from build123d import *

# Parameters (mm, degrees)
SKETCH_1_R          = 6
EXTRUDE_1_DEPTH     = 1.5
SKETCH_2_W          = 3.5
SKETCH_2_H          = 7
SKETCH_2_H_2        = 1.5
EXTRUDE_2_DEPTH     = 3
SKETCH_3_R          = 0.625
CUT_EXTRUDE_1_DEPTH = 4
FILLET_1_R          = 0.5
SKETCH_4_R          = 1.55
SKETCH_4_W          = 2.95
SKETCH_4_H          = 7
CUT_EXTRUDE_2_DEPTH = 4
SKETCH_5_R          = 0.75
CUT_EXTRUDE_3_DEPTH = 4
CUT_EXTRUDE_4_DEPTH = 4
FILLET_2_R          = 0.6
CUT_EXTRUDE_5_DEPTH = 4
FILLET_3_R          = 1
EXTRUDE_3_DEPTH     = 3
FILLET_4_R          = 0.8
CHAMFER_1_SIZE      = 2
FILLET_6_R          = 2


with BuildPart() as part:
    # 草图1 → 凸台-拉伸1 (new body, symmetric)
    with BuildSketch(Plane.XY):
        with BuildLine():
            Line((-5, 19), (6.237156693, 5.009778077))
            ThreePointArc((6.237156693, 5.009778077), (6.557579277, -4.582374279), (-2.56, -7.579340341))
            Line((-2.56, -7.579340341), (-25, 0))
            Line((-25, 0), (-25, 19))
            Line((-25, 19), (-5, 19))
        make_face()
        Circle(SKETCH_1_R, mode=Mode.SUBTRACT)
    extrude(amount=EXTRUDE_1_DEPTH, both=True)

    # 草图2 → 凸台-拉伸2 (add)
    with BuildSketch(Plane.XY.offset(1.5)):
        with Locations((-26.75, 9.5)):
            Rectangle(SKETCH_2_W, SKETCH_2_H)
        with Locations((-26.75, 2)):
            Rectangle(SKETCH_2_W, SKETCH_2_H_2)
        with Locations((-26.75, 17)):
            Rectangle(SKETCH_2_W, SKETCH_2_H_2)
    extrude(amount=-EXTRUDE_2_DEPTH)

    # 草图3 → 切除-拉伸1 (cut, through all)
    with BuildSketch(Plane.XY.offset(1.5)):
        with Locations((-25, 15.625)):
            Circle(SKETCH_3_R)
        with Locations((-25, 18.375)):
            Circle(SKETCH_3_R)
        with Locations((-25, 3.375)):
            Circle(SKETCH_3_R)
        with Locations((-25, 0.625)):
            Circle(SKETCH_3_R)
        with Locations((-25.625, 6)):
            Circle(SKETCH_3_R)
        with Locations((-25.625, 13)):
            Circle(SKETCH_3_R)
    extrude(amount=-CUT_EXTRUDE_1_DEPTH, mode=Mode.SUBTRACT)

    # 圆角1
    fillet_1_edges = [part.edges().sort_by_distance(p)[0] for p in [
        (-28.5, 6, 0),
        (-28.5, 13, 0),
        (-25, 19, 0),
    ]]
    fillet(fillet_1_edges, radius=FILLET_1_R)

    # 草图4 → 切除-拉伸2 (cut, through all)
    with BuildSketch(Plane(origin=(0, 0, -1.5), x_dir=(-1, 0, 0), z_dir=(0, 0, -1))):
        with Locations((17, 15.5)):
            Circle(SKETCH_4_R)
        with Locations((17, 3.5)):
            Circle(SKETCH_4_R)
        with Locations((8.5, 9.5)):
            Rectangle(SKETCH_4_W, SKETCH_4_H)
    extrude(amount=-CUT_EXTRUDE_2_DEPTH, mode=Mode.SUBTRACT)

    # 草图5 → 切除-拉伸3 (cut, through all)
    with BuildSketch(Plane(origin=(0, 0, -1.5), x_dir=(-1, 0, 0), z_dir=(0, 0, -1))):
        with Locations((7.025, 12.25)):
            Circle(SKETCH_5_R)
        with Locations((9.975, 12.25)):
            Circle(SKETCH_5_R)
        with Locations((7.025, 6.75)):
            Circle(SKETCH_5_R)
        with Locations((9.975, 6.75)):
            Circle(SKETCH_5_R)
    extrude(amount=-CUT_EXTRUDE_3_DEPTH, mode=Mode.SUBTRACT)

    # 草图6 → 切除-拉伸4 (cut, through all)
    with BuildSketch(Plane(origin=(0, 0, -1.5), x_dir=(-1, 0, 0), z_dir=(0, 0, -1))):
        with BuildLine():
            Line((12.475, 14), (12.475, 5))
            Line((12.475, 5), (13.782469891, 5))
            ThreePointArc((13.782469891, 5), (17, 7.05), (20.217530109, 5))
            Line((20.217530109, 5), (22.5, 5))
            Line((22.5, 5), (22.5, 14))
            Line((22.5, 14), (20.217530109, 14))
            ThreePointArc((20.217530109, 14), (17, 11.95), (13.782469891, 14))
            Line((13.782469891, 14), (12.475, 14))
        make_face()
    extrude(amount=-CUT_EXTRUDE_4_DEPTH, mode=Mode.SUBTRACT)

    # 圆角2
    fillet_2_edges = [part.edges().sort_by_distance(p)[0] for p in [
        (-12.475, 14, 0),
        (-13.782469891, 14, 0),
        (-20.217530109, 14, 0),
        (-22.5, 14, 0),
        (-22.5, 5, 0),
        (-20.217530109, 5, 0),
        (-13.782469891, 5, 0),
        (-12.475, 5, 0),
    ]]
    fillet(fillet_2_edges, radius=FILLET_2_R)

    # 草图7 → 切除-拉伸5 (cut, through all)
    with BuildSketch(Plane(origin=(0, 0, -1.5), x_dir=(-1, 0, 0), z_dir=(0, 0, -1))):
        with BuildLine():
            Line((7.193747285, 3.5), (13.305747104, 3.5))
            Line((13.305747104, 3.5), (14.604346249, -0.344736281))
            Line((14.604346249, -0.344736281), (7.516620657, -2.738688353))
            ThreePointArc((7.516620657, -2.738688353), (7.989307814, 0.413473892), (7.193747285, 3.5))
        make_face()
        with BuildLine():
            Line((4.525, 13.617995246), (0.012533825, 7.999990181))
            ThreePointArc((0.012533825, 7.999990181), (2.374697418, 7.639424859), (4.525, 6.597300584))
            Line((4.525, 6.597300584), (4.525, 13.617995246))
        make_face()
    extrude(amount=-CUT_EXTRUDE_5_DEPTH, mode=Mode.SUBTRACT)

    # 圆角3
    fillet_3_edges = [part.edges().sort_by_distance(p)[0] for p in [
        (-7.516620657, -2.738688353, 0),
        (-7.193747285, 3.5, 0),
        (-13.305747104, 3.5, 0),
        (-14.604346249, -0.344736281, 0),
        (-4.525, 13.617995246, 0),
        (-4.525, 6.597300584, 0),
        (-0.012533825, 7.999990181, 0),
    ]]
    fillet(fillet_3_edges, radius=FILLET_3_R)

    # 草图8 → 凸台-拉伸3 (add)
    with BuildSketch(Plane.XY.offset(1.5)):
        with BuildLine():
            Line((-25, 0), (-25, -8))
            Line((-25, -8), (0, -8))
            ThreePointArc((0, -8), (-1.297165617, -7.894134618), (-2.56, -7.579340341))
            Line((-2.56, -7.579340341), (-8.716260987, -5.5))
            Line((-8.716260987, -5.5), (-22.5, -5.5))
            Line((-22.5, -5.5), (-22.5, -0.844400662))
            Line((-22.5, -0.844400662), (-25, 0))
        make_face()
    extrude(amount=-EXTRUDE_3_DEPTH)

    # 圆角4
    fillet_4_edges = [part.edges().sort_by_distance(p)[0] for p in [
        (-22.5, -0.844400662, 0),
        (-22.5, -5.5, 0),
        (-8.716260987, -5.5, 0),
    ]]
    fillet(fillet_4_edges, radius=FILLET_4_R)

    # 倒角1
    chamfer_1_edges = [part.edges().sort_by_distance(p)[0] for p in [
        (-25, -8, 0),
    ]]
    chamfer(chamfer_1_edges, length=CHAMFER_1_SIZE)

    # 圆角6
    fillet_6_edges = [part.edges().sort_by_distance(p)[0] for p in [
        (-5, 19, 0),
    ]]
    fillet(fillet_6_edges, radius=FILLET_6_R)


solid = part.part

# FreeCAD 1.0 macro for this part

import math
import FreeCAD as App
import Part
import Sketcher
from FreeCAD import Vector


def edges_at(feature, points):
    """Names of the edges that pass closest to the given points."""
    edges = feature.Shape.Edges
    near = lambda p: min(range(len(edges)), key=lambda i: edges[i].distToShape(Part.Vertex(*p))[0])
    return sorted({f"Edge{near(p) + 1}" for p in points})

doc = App.newDocument("Part")
body = doc.addObject("PartDesign::Body", "Body")

# Sketch on XY plane
sketch1 = doc.addObject("Sketcher::SketchObject", "Sketch")
body.addObject(sketch1)
sketch1.AttachmentSupport = (doc.XY_Plane, [""])
sketch1.MapMode = "FlatFace"
sketch1.addGeometry([
    Part.LineSegment(Vector(6.237157, 5.009778, 0), Vector(-5, 19, 0)),  # 0
    Part.LineSegment(Vector(-5, 19, 0), Vector(-25, 19, 0)),  # 1
    Part.LineSegment(Vector(-25, 19, 0), Vector(-25, 0, 0)),  # 2
    Part.LineSegment(Vector(-25, 0, 0), Vector(-2.56, -7.57934, 0)),  # 3
    Part.ArcOfCircle(Part.Circle(Vector(0, 0, 0), Vector(0, 0, 1), 8), math.radians(-108.662925), math.radians(38.771954)),  # 4
    Part.Circle(Vector(0, 0, 0), Vector(0, 0, 1), 6),  # 5
], False)
sketch1.addConstraint([
    Sketcher.Constraint("Coincident", 0, 2, 1, 1),
    Sketcher.Constraint("Coincident", 1, 2, 2, 1),
    Sketcher.Constraint("Coincident", 2, 2, 3, 1),
    Sketcher.Constraint("Tangent", 3, 2, 4, 1),
    Sketcher.Constraint("Tangent", 4, 2, 0, 1),
    Sketcher.Constraint("Horizontal", 1),
    Sketcher.Constraint("Vertical", 2),
    Sketcher.Constraint("Coincident", 4, 3, -1, 1),
    Sketcher.Constraint("Coincident", 5, 3, -1, 1),
    Sketcher.Constraint("PointOnObject", 2, 2, -1),
    Sketcher.Constraint("Diameter", 5, 12.0),
    Sketcher.Constraint("Radius", 4, 8.0),
    Sketcher.Constraint("DistanceX", 1, 2, 1, 1, 20.0),
    Sketcher.Constraint("DistanceY", 2, 2, 2, 1, 19.0),
    Sketcher.Constraint("DistanceX", 0, 2, -1, 1, 5.0),
])
pad1 = doc.addObject("PartDesign::Pad", "Pad")
body.addObject(pad1)
pad1.Profile = sketch1
pad1.Length = 3
pad1.Midplane = True

# Sketch on XY plane
sketch2 = doc.addObject("Sketcher::SketchObject", "Sketch001")
body.addObject(sketch2)
sketch2.AttachmentSupport = (doc.XY_Plane, [""])
sketch2.MapMode = "FlatFace"
sketch2.AttachmentOffset = App.Placement(Vector(0, 0, 1.5), App.Rotation())
sketch2.addGeometry([
    Part.LineSegment(Vector(-28.5, 13, 0), Vector(-28.5, 6, 0)),  # 0
    Part.LineSegment(Vector(-28.5, 6, 0), Vector(-25, 6, 0)),  # 1
    Part.LineSegment(Vector(-25, 6, 0), Vector(-25, 13, 0)),  # 2
    Part.LineSegment(Vector(-25, 13, 0), Vector(-28.5, 13, 0)),  # 3
    Part.LineSegment(Vector(-28.5, 2.75, 0), Vector(-28.5, 1.25, 0)),  # 4
    Part.LineSegment(Vector(-28.5, 1.25, 0), Vector(-25, 1.25, 0)),  # 5
    Part.LineSegment(Vector(-25, 1.25, 0), Vector(-25, 2.75, 0)),  # 6
    Part.LineSegment(Vector(-25, 2.75, 0), Vector(-28.5, 2.75, 0)),  # 7
    Part.LineSegment(Vector(-28.5, 17.75, 0), Vector(-28.5, 16.25, 0)),  # 8
    Part.LineSegment(Vector(-28.5, 16.25, 0), Vector(-25, 16.25, 0)),  # 9
    Part.LineSegment(Vector(-25, 16.25, 0), Vector(-25, 17.75, 0)),  # 10
    Part.LineSegment(Vector(-25, 17.75, 0), Vector(-28.5, 17.75, 0)),  # 11
], False)
sketch2.addConstraint([
    Sketcher.Constraint("Coincident", 0, 2, 1, 1),
    Sketcher.Constraint("Coincident", 1, 2, 2, 1),
    Sketcher.Constraint("Coincident", 2, 2, 3, 1),
    Sketcher.Constraint("Coincident", 3, 2, 0, 1),
    Sketcher.Constraint("Coincident", 4, 2, 5, 1),
    Sketcher.Constraint("Coincident", 5, 2, 6, 1),
    Sketcher.Constraint("Coincident", 6, 2, 7, 1),
    Sketcher.Constraint("Coincident", 7, 2, 4, 1),
    Sketcher.Constraint("Coincident", 8, 2, 9, 1),
    Sketcher.Constraint("Coincident", 9, 2, 10, 1),
    Sketcher.Constraint("Coincident", 10, 2, 11, 1),
    Sketcher.Constraint("Coincident", 11, 2, 8, 1),
    Sketcher.Constraint("Vertical", 0),
    Sketcher.Constraint("Horizontal", 1),
    Sketcher.Constraint("Vertical", 2),
    Sketcher.Constraint("Horizontal", 3),
    Sketcher.Constraint("Vertical", 4),
    Sketcher.Constraint("Horizontal", 5),
    Sketcher.Constraint("Vertical", 6),
    Sketcher.Constraint("Horizontal", 7),
    Sketcher.Constraint("Vertical", 8),
    Sketcher.Constraint("Horizontal", 9),
    Sketcher.Constraint("Vertical", 10),
    Sketcher.Constraint("Horizontal", 11),
    Sketcher.Constraint("Vertical", 3, 2, 4, 2),
    Sketcher.Constraint("Vertical", 2, 2, 5, 2),
    Sketcher.Constraint("Vertical", 7, 2, 8, 2),
    Sketcher.Constraint("Vertical", 6, 2, 9, 2),
    Sketcher.Constraint("Equal", 6, 8),
    Sketcher.Constraint("DistanceY", 0, 2, 0, 1, 7.0),
    Sketcher.Constraint("DistanceX", 1, 1, 1, 2, 3.5),
    Sketcher.Constraint("DistanceY", 4, 2, 4, 1, 1.5),
    Sketcher.Constraint("DistanceY", -1, 1, 0, 2, 6.0),
    Sketcher.Constraint("DistanceX", 1, 2, -1, 1, 25.0),
    Sketcher.Constraint("DistanceY", 7, 2, 8, 2, 13.5),
    Sketcher.Constraint("DistanceY", -1, 1, 4, 2, 1.25),
])
pad2 = doc.addObject("PartDesign::Pad", "Pad001")
body.addObject(pad2)
pad2.Profile = sketch2
pad2.Length = 3
pad2.Reversed = True

# Sketch on XY plane
sketch3 = doc.addObject("Sketcher::SketchObject", "Sketch002")
body.addObject(sketch3)
sketch3.AttachmentSupport = (doc.XY_Plane, [""])
sketch3.MapMode = "FlatFace"
sketch3.AttachmentOffset = App.Placement(Vector(0, 0, 1.5), App.Rotation())
sketch3.addGeometry([
    Part.Circle(Vector(-25, 15.625, 0), Vector(0, 0, 1), 0.625),  # 0
    Part.Circle(Vector(-25, 18.375, 0), Vector(0, 0, 1), 0.625),  # 1
    Part.Circle(Vector(-25, 3.375, 0), Vector(0, 0, 1), 0.625),  # 2
    Part.Circle(Vector(-25, 0.625, 0), Vector(0, 0, 1), 0.625),  # 3
    Part.Circle(Vector(-25.625, 6, 0), Vector(0, 0, 1), 0.625),  # 4
    Part.Circle(Vector(-25.625, 13, 0), Vector(0, 0, 1), 0.625),  # 5
], False)
sketch3.addConstraint([
    Sketcher.Constraint("Equal", 0, 1),
    Sketcher.Constraint("Equal", 1, 2),
    Sketcher.Constraint("Equal", 2, 3),
    Sketcher.Constraint("Equal", 3, 4),
    Sketcher.Constraint("Equal", 4, 5),
    Sketcher.Constraint("Vertical", 0, 3, 1, 3),
    Sketcher.Constraint("Vertical", 1, 3, 2, 3),
    Sketcher.Constraint("Vertical", 2, 3, 3, 3),
    Sketcher.Constraint("Vertical", 4, 3, 5, 3),
    Sketcher.Constraint("Diameter", 0, 1.25),
    Sketcher.Constraint("DistanceX", 0, 3, -1, 1, 25.0),
    Sketcher.Constraint("DistanceY", -1, 1, 4, 3, 6.0),
    Sketcher.Constraint("DistanceY", -1, 1, 5, 3, 13.0),
    Sketcher.Constraint("DistanceY", 2, 3, 1, 3, 15.0),
    Sketcher.Constraint("DistanceY", 3, 3, 0, 3, 15.0),
    Sketcher.Constraint("DistanceY", 0, 3, 1, 3, 2.75),
    Sketcher.Constraint("DistanceY", -1, 1, 0, 3, 15.625),
    Sketcher.Constraint("DistanceX", 4, 3, -1, 1, 25.625),
])
pocket1 = doc.addObject("PartDesign::Pocket", "Pocket")
body.addObject(pocket1)
pocket1.Profile = sketch3
pocket1.Type = "ThroughAll"
doc.recompute()

fillet = doc.addObject("PartDesign::Fillet", "Fillet")
body.addObject(fillet)
fillet.Base = (pocket1, edges_at(pocket1, [(-28.5, 6, 0), (-28.5, 13, 0), (-25, 19, 0)]))
fillet.Radius = 0.5

# Sketch on XY plane
sketch4 = doc.addObject("Sketcher::SketchObject", "Sketch003")
body.addObject(sketch4)
sketch4.AttachmentSupport = (doc.XY_Plane, [""])
sketch4.MapMode = "FlatFace"
sketch4.AttachmentOffset = App.Placement(Vector(0, 0, -1.5), App.Rotation())
sketch4.addGeometry([
    Part.Circle(Vector(-17, 15.5, 0), Vector(0, 0, 1), 1.55),  # 0
    Part.Circle(Vector(-17, 3.5, 0), Vector(0, 0, 1), 1.55),  # 1
    Part.LineSegment(Vector(-7.025, 13, 0), Vector(-7.025, 6, 0)),  # 2
    Part.LineSegment(Vector(-7.025, 6, 0), Vector(-9.975, 6, 0)),  # 3
    Part.LineSegment(Vector(-9.975, 6, 0), Vector(-9.975, 13, 0)),  # 4
    Part.LineSegment(Vector(-9.975, 13, 0), Vector(-7.025, 13, 0)),  # 5
], False)
sketch4.addConstraint([
    Sketcher.Constraint("Coincident", 2, 2, 3, 1),
    Sketcher.Constraint("Coincident", 3, 2, 4, 1),
    Sketcher.Constraint("Coincident", 4, 2, 5, 1),
    Sketcher.Constraint("Coincident", 5, 2, 2, 1),
    Sketcher.Constraint("Vertical", 2),
    Sketcher.Constraint("Horizontal", 3),
    Sketcher.Constraint("Vertical", 4),
    Sketcher.Constraint("Horizontal", 5),
    Sketcher.Constraint("Equal", 0, 1),
    Sketcher.Constraint("Vertical", 0, 3, 1, 3),
    Sketcher.Constraint("Diameter", 0, 3.1),
    Sketcher.Constraint("DistanceY", 2, 2, 2, 1, 7.0),
    Sketcher.Constraint("DistanceX", 0, 3, -1, 1, 17.0),
    Sketcher.Constraint("DistanceY", -1, 1, 2, 2, 6.0),
    Sketcher.Constraint("DistanceY", 1, 3, 0, 3, 12.0),
    Sketcher.Constraint("DistanceX", 3, 2, 3, 1, 2.95),
    Sketcher.Constraint("DistanceY", -1, 1, 0, 3, 15.5),
    Sketcher.Constraint("DistanceX", 2, 2, -1, 1, 7.025),
])
pocket2 = doc.addObject("PartDesign::Pocket", "Pocket001")
body.addObject(pocket2)
pocket2.Profile = sketch4
pocket2.Type = "ThroughAll"
pocket2.Reversed = True

# Sketch on XY plane
sketch5 = doc.addObject("Sketcher::SketchObject", "Sketch004")
body.addObject(sketch5)
sketch5.AttachmentSupport = (doc.XY_Plane, [""])
sketch5.MapMode = "FlatFace"
sketch5.AttachmentOffset = App.Placement(Vector(0, 0, -1.5), App.Rotation())
sketch5.addGeometry([
    Part.Circle(Vector(-7.025, 12.25, 0), Vector(0, 0, 1), 0.75),
    Part.Circle(Vector(-9.975, 12.25, 0), Vector(0, 0, 1), 0.75),
    Part.Circle(Vector(-7.025, 6.75, 0), Vector(0, 0, 1), 0.75),
    Part.Circle(Vector(-9.975, 6.75, 0), Vector(0, 0, 1), 0.75),
], False)
sketch5.addConstraint([
    Sketcher.Constraint("Equal", 0, 1),
    Sketcher.Constraint("Equal", 1, 2),
    Sketcher.Constraint("Equal", 2, 3),
    Sketcher.Constraint("Horizontal", 0, 3, 1, 3),
    Sketcher.Constraint("Horizontal", 2, 3, 3, 3),
    Sketcher.Constraint("Vertical", 0, 3, 2, 3),
    Sketcher.Constraint("Vertical", 1, 3, 3, 3),
    Sketcher.Constraint("Diameter", 0, 1.5),
    Sketcher.Constraint("DistanceY", 2, 3, 0, 3, 5.5),
    Sketcher.Constraint("DistanceY", -1, 1, 0, 3, 12.25),
    Sketcher.Constraint("DistanceX", 1, 3, 0, 3, 2.95),
    Sketcher.Constraint("DistanceX", 0, 3, -1, 1, 7.025),
])
pocket3 = doc.addObject("PartDesign::Pocket", "Pocket002")
body.addObject(pocket3)
pocket3.Profile = sketch5
pocket3.Type = "ThroughAll"
pocket3.Reversed = True

# Sketch on XY plane
sketch6 = doc.addObject("Sketcher::SketchObject", "Sketch005")
body.addObject(sketch6)
sketch6.AttachmentSupport = (doc.XY_Plane, [""])
sketch6.MapMode = "FlatFace"
sketch6.AttachmentOffset = App.Placement(Vector(0, 0, -1.5), App.Rotation())
sketch6.addGeometry([
    Part.LineSegment(Vector(-12.475, 14, 0), Vector(-12.475, 5, 0)),  # 0
    Part.LineSegment(Vector(-12.475, 5, 0), Vector(-13.78247, 5, 0)),  # 1
    Part.ArcOfCircle(Part.Circle(Vector(-17, 3.5, 0), Vector(0, 0, 1), 3.55), math.radians(24.99475), math.radians(155.00525)),  # 2
    Part.LineSegment(Vector(-20.21753, 5, 0), Vector(-22.5, 5, 0)),  # 3
    Part.LineSegment(Vector(-22.5, 5, 0), Vector(-22.5, 14, 0)),  # 4
    Part.LineSegment(Vector(-22.5, 14, 0), Vector(-20.21753, 14, 0)),  # 5
    Part.ArcOfCircle(Part.Circle(Vector(-17, 15.5, 0), Vector(0, 0, 1), 3.55), math.radians(-155.00525), math.radians(-24.99475)),  # 6
    Part.LineSegment(Vector(-13.78247, 14, 0), Vector(-12.475, 14, 0)),  # 7
], False)
sketch6.addConstraint([
    Sketcher.Constraint("Coincident", 0, 2, 1, 1),
    Sketcher.Constraint("Coincident", 1, 2, 2, 1),
    Sketcher.Constraint("Coincident", 2, 2, 3, 1),
    Sketcher.Constraint("Coincident", 3, 2, 4, 1),
    Sketcher.Constraint("Coincident", 4, 2, 5, 1),
    Sketcher.Constraint("Coincident", 5, 2, 6, 1),
    Sketcher.Constraint("Coincident", 6, 2, 7, 1),
    Sketcher.Constraint("Coincident", 7, 2, 0, 1),
    Sketcher.Constraint("Vertical", 0),
    Sketcher.Constraint("Horizontal", 1),
    Sketcher.Constraint("Horizontal", 3),
    Sketcher.Constraint("Vertical", 4),
    Sketcher.Constraint("Horizontal", 5),
    Sketcher.Constraint("Horizontal", 7),
    Sketcher.Constraint("Equal", 2, 6),
    Sketcher.Constraint("Horizontal", 1, 2, 2, 2),
    Sketcher.Constraint("Horizontal", 5, 2, 6, 2),
    Sketcher.Constraint("Vertical", 2, 3, 6, 3),
    Sketcher.Constraint("Vertical", 2, 2, 5, 2),
    Sketcher.Constraint("DistanceY", 0, 2, 0, 1, 9.0),
    Sketcher.Constraint("Radius", 2, 3.55),
    Sketcher.Constraint("DistanceX", 2, 3, -1, 1, 17.0),
    Sketcher.Constraint("DistanceY", -1, 1, 0, 2, 5.0),
    Sketcher.Constraint("DistanceY", 2, 3, 6, 3, 12.0),
    Sketcher.Constraint("DistanceX", 3, 2, -1, 1, 22.5),
    Sketcher.Constraint("DistanceX", 0, 2, -1, 1, 12.475),
])
pocket4 = doc.addObject("PartDesign::Pocket", "Pocket003")
body.addObject(pocket4)
pocket4.Profile = sketch6
pocket4.Type = "ThroughAll"
pocket4.Reversed = True
doc.recompute()

fillet2 = doc.addObject("PartDesign::Fillet", "Fillet001")
body.addObject(fillet2)
fillet2.Base = (pocket4, edges_at(pocket4, [
    (-12.475, 14, 0),
    (-13.782, 14, 0),
    (-20.218, 14, 0),
    (-22.5, 14, 0),
    (-22.5, 5, 0),
    (-20.218, 5, 0),
    (-13.782, 5, 0),
    (-12.475, 5, 0),
]))
fillet2.Radius = 0.6

# Sketch on XY plane
sketch7 = doc.addObject("Sketcher::SketchObject", "Sketch006")
body.addObject(sketch7)
sketch7.AttachmentSupport = (doc.XY_Plane, [""])
sketch7.MapMode = "FlatFace"
sketch7.AttachmentOffset = App.Placement(Vector(0, 0, -1.5), App.Rotation())
sketch7.addGeometry([
    Part.LineSegment(Vector(-13.305747, 3.5, 0), Vector(-7.193747, 3.5, 0)),  # 0
    Part.ArcOfCircle(Part.Circle(Vector(0, 0, 0), Vector(0, 0, 1), 8), math.radians(154.05552), math.radians(200.019263)),  # 1
    Part.LineSegment(Vector(-7.516621, -2.738688, 0), Vector(-14.604346, -0.344736, 0)),  # 2
    Part.LineSegment(Vector(-14.604346, -0.344736, 0), Vector(-13.305747, 3.5, 0)),  # 3
    Part.LineSegment(Vector(-4.525, 13.617995, 0), Vector(-0.012534, 7.99999, 0)),  # 4
    Part.ArcOfCircle(Part.Circle(Vector(0, 0, 0), Vector(0, 0, 1), 8), math.radians(90.089767), math.radians(124.445704)),  # 5
    Part.LineSegment(Vector(-4.525, 6.597301, 0), Vector(-4.525, 13.617995, 0)),  # 6
], False)
sketch7.addConstraint([
    Sketcher.Constraint("Coincident", 0, 2, 1, 1),
    Sketcher.Constraint("Coincident", 1, 2, 2, 1),
    Sketcher.Constraint("Coincident", 2, 2, 3, 1),
    Sketcher.Constraint("Coincident", 3, 2, 0, 1),
    Sketcher.Constraint("Coincident", 4, 2, 5, 1),
    Sketcher.Constraint("Coincident", 5, 2, 6, 1),
    Sketcher.Constraint("Coincident", 6, 2, 4, 1),
    Sketcher.Constraint("Horizontal", 0),
    Sketcher.Constraint("Vertical", 6),
    Sketcher.Constraint("Coincident", 1, 3, -1, 1),
    Sketcher.Constraint("Coincident", 5, 3, -1, 1),
    Sketcher.Constraint("Equal", 1, 5),
    Sketcher.Constraint("Perpendicular", 2, 3),
    Sketcher.Constraint("Radius", 1, 8.0),
    Sketcher.Constraint("DistanceY", -1, 1, 0, 2, 3.5),
    Sketcher.Constraint("DistanceX", 0, 1, 0, 2, 6.112),
    Sketcher.Constraint("DistanceX", 5, 2, -1, 1, 4.525),
    Sketcher.Constraint("Distance", 2, 7.4811),
    Sketcher.Constraint("DistanceX", 2, 2, 0, 2, 7.410599),
    Sketcher.Constraint("DistanceY", 6, 1, 6, 2, 7.020695),
    Sketcher.Constraint("Distance", 4, 7.205854),
])
pocket5 = doc.addObject("PartDesign::Pocket", "Pocket004")
body.addObject(pocket5)
pocket5.Profile = sketch7
pocket5.Type = "ThroughAll"
pocket5.Reversed = True
doc.recompute()

fillet3 = doc.addObject("PartDesign::Fillet", "Fillet002")
body.addObject(fillet3)
fillet3.Base = (pocket5, edges_at(pocket5, [
    (-7.517, -2.739, 0),
    (-7.194, 3.5, 0),
    (-13.306, 3.5, 0),
    (-14.604, -0.345, 0),
    (-4.525, 13.618, 0),
    (-4.525, 6.597, 0),
    (-0.013, 8, 0),
]))
fillet3.Radius = 1

# Sketch on XY plane
sketch8 = doc.addObject("Sketcher::SketchObject", "Sketch007")
body.addObject(sketch8)
sketch8.AttachmentSupport = (doc.XY_Plane, [""])
sketch8.MapMode = "FlatFace"
sketch8.AttachmentOffset = App.Placement(Vector(0, 0, 1.5), App.Rotation())
sketch8.addGeometry([
    Part.LineSegment(Vector(-25, 0, 0), Vector(-25, -8, 0)),  # 0
    Part.LineSegment(Vector(-25, -8, 0), Vector(0, -8, 0)),  # 1
    Part.ArcOfCircle(Part.Circle(Vector(0, 0, 0), Vector(0, 0, 1), 8), math.radians(-108.662925), math.radians(-90)),  # 2
    Part.LineSegment(Vector(-2.56, -7.57934, 0), Vector(-8.716261, -5.5, 0)),  # 3
    Part.LineSegment(Vector(-8.716261, -5.5, 0), Vector(-22.5, -5.5, 0)),  # 4
    Part.LineSegment(Vector(-22.5, -5.5, 0), Vector(-22.5, -0.844401, 0)),  # 5
    Part.LineSegment(Vector(-22.5, -0.844401, 0), Vector(-25, 0, 0)),  # 6
], False)
sketch8.addConstraint([
    Sketcher.Constraint("Coincident", 0, 2, 1, 1),
    Sketcher.Constraint("Tangent", 1, 2, 2, 2),
    Sketcher.Constraint("Tangent", 2, 1, 3, 1),
    Sketcher.Constraint("Coincident", 3, 2, 4, 1),
    Sketcher.Constraint("Coincident", 4, 2, 5, 1),
    Sketcher.Constraint("Coincident", 5, 2, 6, 1),
    Sketcher.Constraint("Coincident", 6, 2, 0, 1),
    Sketcher.Constraint("Vertical", 0),
    Sketcher.Constraint("Horizontal", 1),
    Sketcher.Constraint("Horizontal", 4),
    Sketcher.Constraint("Vertical", 5),
    Sketcher.Constraint("Coincident", 2, 3, -1, 1),
    Sketcher.Constraint("PointOnObject", 6, 2, -1),
    Sketcher.Constraint("Parallel", 3, 6),
    Sketcher.Constraint("Radius", 2, 8.0),
    Sketcher.Constraint("DistanceX", 1, 1, 1, 2, 25.0),
    Sketcher.Constraint("DistanceY", 3, 2, -1, 1, 5.5),
    Sketcher.Constraint("DistanceX", 4, 2, -1, 1, 22.5),
    Sketcher.Constraint("DistanceX", 2, 1, -1, 1, 2.56),
])
pad3 = doc.addObject("PartDesign::Pad", "Pad002")
body.addObject(pad3)
pad3.Profile = sketch8
pad3.Length = 3
pad3.Reversed = True
doc.recompute()

fillet4 = doc.addObject("PartDesign::Fillet", "Fillet003")
body.addObject(fillet4)
fillet4.Base = (pad3, edges_at(pad3, [(-22.5, -0.844, 0), (-22.5, -5.5, 0), (-8.716, -5.5, 0)]))
fillet4.Radius = 0.8
doc.recompute()

chamfer = doc.addObject("PartDesign::Chamfer", "Chamfer")
body.addObject(chamfer)
chamfer.Base = (fillet4, edges_at(fillet4, [(-25, -8, 0)]))
chamfer.Size = 2
doc.recompute()

fillet5 = doc.addObject("PartDesign::Fillet", "Fillet004")
body.addObject(fillet5)
fillet5.Base = (chamfer, edges_at(chamfer, [(-5, 19, 0)]))
fillet5.Radius = 2

doc.recompute()
